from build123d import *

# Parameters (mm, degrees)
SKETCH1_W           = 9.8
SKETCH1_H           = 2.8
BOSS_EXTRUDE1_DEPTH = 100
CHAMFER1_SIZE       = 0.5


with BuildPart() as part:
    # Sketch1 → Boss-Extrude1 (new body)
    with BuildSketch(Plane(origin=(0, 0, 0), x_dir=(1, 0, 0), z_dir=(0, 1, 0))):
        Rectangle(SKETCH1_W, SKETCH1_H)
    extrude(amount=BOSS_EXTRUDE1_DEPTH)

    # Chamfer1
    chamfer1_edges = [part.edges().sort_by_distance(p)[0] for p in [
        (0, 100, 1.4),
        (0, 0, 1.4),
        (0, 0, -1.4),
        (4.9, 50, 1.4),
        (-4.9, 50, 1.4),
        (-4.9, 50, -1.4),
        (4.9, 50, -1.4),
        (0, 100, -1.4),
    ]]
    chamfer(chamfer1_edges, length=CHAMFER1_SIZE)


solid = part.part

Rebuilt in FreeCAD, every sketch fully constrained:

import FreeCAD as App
import Part
import Sketcher
from FreeCAD import Vector


def edges_at(feature, points):
    """Names of the edges that pass closest to the given points."""
    edges = feature.Shape.Edges
    near = lambda p: min(range(len(edges)), key=lambda i: edges[i].distToShape(Part.Vertex(*p))[0])
    return sorted({f"Edge{near(p) + 1}" for p in points})

doc = App.newDocument("Part")
params = doc.addObject("Spreadsheet::Sheet", "Params")
for row, (alias, value) in enumerate([
    ("sketch1_width", "9.8 mm"),
    ("sketch1_height", "2.8 mm"),
    ("pad1_length", "100 mm"),
    ("chamfer_size", "0.5 mm"),
], start=1):
    params.set(f"A{row}", alias)
    params.set(f"B{row}", "=" + value)
    params.setAlias(f"B{row}", alias)

body = doc.addObject("PartDesign::Body", "Body")

sketch1 = doc.addObject("Sketcher::SketchObject", "Sketch")
body.addObject(sketch1)
sketch1.AttachmentSupport = (doc.XZ_Plane, [""])
sketch1.MapMode = "FlatFace"
sketch1.addGeometry([
    Part.LineSegment(Vector(-4.9, -1.4, 0), Vector(-4.9, 1.4, 0)),
    Part.LineSegment(Vector(-4.9, 1.4, 0), Vector(4.9, 1.4, 0)),
    Part.LineSegment(Vector(4.9, 1.4, 0), Vector(4.9, -1.4, 0)),
    Part.LineSegment(Vector(4.9, -1.4, 0), Vector(-4.9, -1.4, 0)),
], False)
sketch1.addConstraint([
    Sketcher.Constraint("Coincident", 0, 2, 1, 1),
    Sketcher.Constraint("Coincident", 1, 2, 2, 1),
    Sketcher.Constraint("Coincident", 2, 2, 3, 1),
    Sketcher.Constraint("Coincident", 3, 2, 0, 1),
    Sketcher.Constraint("Vertical", 0),
    Sketcher.Constraint("Horizontal", 1),
    Sketcher.Constraint("Vertical", 2),
    Sketcher.Constraint("Horizontal", 3),
    Sketcher.Constraint("Symmetric", 0, 2, 2, 2, -1, 1),
    Sketcher.Constraint("DistanceX", 1, 1, 1, 2, 9.8),
    Sketcher.Constraint("DistanceY", 0, 1, 0, 2, 2.8),
])
sketch1.setExpression("Constraints[9]", "Params.sketch1_width")
sketch1.setExpression("Constraints[10]", "Params.sketch1_height")
pad1 = doc.addObject("PartDesign::Pad", "Pad")
body.addObject(pad1)
pad1.Profile = sketch1
pad1.setExpression("Length", "Params.pad1_length")
pad1.Reversed = True
doc.recompute()

chamfer = doc.addObject("PartDesign::Chamfer", "Chamfer")
body.addObject(chamfer)
chamfer.Base = (pad1, edges_at(pad1, [
    (0, 100, 1.4),
    (0, 0, 1.4),
    (0, 0, -1.4),
    (4.9, 50, 1.4),
    (-4.9, 50, 1.4),
    (-4.9, 50, -1.4),
    (4.9, 50, -1.4),
    (0, 100, -1.4),
]))
chamfer.setExpression("Size", "Params.chamfer_size")

doc.recompute()
